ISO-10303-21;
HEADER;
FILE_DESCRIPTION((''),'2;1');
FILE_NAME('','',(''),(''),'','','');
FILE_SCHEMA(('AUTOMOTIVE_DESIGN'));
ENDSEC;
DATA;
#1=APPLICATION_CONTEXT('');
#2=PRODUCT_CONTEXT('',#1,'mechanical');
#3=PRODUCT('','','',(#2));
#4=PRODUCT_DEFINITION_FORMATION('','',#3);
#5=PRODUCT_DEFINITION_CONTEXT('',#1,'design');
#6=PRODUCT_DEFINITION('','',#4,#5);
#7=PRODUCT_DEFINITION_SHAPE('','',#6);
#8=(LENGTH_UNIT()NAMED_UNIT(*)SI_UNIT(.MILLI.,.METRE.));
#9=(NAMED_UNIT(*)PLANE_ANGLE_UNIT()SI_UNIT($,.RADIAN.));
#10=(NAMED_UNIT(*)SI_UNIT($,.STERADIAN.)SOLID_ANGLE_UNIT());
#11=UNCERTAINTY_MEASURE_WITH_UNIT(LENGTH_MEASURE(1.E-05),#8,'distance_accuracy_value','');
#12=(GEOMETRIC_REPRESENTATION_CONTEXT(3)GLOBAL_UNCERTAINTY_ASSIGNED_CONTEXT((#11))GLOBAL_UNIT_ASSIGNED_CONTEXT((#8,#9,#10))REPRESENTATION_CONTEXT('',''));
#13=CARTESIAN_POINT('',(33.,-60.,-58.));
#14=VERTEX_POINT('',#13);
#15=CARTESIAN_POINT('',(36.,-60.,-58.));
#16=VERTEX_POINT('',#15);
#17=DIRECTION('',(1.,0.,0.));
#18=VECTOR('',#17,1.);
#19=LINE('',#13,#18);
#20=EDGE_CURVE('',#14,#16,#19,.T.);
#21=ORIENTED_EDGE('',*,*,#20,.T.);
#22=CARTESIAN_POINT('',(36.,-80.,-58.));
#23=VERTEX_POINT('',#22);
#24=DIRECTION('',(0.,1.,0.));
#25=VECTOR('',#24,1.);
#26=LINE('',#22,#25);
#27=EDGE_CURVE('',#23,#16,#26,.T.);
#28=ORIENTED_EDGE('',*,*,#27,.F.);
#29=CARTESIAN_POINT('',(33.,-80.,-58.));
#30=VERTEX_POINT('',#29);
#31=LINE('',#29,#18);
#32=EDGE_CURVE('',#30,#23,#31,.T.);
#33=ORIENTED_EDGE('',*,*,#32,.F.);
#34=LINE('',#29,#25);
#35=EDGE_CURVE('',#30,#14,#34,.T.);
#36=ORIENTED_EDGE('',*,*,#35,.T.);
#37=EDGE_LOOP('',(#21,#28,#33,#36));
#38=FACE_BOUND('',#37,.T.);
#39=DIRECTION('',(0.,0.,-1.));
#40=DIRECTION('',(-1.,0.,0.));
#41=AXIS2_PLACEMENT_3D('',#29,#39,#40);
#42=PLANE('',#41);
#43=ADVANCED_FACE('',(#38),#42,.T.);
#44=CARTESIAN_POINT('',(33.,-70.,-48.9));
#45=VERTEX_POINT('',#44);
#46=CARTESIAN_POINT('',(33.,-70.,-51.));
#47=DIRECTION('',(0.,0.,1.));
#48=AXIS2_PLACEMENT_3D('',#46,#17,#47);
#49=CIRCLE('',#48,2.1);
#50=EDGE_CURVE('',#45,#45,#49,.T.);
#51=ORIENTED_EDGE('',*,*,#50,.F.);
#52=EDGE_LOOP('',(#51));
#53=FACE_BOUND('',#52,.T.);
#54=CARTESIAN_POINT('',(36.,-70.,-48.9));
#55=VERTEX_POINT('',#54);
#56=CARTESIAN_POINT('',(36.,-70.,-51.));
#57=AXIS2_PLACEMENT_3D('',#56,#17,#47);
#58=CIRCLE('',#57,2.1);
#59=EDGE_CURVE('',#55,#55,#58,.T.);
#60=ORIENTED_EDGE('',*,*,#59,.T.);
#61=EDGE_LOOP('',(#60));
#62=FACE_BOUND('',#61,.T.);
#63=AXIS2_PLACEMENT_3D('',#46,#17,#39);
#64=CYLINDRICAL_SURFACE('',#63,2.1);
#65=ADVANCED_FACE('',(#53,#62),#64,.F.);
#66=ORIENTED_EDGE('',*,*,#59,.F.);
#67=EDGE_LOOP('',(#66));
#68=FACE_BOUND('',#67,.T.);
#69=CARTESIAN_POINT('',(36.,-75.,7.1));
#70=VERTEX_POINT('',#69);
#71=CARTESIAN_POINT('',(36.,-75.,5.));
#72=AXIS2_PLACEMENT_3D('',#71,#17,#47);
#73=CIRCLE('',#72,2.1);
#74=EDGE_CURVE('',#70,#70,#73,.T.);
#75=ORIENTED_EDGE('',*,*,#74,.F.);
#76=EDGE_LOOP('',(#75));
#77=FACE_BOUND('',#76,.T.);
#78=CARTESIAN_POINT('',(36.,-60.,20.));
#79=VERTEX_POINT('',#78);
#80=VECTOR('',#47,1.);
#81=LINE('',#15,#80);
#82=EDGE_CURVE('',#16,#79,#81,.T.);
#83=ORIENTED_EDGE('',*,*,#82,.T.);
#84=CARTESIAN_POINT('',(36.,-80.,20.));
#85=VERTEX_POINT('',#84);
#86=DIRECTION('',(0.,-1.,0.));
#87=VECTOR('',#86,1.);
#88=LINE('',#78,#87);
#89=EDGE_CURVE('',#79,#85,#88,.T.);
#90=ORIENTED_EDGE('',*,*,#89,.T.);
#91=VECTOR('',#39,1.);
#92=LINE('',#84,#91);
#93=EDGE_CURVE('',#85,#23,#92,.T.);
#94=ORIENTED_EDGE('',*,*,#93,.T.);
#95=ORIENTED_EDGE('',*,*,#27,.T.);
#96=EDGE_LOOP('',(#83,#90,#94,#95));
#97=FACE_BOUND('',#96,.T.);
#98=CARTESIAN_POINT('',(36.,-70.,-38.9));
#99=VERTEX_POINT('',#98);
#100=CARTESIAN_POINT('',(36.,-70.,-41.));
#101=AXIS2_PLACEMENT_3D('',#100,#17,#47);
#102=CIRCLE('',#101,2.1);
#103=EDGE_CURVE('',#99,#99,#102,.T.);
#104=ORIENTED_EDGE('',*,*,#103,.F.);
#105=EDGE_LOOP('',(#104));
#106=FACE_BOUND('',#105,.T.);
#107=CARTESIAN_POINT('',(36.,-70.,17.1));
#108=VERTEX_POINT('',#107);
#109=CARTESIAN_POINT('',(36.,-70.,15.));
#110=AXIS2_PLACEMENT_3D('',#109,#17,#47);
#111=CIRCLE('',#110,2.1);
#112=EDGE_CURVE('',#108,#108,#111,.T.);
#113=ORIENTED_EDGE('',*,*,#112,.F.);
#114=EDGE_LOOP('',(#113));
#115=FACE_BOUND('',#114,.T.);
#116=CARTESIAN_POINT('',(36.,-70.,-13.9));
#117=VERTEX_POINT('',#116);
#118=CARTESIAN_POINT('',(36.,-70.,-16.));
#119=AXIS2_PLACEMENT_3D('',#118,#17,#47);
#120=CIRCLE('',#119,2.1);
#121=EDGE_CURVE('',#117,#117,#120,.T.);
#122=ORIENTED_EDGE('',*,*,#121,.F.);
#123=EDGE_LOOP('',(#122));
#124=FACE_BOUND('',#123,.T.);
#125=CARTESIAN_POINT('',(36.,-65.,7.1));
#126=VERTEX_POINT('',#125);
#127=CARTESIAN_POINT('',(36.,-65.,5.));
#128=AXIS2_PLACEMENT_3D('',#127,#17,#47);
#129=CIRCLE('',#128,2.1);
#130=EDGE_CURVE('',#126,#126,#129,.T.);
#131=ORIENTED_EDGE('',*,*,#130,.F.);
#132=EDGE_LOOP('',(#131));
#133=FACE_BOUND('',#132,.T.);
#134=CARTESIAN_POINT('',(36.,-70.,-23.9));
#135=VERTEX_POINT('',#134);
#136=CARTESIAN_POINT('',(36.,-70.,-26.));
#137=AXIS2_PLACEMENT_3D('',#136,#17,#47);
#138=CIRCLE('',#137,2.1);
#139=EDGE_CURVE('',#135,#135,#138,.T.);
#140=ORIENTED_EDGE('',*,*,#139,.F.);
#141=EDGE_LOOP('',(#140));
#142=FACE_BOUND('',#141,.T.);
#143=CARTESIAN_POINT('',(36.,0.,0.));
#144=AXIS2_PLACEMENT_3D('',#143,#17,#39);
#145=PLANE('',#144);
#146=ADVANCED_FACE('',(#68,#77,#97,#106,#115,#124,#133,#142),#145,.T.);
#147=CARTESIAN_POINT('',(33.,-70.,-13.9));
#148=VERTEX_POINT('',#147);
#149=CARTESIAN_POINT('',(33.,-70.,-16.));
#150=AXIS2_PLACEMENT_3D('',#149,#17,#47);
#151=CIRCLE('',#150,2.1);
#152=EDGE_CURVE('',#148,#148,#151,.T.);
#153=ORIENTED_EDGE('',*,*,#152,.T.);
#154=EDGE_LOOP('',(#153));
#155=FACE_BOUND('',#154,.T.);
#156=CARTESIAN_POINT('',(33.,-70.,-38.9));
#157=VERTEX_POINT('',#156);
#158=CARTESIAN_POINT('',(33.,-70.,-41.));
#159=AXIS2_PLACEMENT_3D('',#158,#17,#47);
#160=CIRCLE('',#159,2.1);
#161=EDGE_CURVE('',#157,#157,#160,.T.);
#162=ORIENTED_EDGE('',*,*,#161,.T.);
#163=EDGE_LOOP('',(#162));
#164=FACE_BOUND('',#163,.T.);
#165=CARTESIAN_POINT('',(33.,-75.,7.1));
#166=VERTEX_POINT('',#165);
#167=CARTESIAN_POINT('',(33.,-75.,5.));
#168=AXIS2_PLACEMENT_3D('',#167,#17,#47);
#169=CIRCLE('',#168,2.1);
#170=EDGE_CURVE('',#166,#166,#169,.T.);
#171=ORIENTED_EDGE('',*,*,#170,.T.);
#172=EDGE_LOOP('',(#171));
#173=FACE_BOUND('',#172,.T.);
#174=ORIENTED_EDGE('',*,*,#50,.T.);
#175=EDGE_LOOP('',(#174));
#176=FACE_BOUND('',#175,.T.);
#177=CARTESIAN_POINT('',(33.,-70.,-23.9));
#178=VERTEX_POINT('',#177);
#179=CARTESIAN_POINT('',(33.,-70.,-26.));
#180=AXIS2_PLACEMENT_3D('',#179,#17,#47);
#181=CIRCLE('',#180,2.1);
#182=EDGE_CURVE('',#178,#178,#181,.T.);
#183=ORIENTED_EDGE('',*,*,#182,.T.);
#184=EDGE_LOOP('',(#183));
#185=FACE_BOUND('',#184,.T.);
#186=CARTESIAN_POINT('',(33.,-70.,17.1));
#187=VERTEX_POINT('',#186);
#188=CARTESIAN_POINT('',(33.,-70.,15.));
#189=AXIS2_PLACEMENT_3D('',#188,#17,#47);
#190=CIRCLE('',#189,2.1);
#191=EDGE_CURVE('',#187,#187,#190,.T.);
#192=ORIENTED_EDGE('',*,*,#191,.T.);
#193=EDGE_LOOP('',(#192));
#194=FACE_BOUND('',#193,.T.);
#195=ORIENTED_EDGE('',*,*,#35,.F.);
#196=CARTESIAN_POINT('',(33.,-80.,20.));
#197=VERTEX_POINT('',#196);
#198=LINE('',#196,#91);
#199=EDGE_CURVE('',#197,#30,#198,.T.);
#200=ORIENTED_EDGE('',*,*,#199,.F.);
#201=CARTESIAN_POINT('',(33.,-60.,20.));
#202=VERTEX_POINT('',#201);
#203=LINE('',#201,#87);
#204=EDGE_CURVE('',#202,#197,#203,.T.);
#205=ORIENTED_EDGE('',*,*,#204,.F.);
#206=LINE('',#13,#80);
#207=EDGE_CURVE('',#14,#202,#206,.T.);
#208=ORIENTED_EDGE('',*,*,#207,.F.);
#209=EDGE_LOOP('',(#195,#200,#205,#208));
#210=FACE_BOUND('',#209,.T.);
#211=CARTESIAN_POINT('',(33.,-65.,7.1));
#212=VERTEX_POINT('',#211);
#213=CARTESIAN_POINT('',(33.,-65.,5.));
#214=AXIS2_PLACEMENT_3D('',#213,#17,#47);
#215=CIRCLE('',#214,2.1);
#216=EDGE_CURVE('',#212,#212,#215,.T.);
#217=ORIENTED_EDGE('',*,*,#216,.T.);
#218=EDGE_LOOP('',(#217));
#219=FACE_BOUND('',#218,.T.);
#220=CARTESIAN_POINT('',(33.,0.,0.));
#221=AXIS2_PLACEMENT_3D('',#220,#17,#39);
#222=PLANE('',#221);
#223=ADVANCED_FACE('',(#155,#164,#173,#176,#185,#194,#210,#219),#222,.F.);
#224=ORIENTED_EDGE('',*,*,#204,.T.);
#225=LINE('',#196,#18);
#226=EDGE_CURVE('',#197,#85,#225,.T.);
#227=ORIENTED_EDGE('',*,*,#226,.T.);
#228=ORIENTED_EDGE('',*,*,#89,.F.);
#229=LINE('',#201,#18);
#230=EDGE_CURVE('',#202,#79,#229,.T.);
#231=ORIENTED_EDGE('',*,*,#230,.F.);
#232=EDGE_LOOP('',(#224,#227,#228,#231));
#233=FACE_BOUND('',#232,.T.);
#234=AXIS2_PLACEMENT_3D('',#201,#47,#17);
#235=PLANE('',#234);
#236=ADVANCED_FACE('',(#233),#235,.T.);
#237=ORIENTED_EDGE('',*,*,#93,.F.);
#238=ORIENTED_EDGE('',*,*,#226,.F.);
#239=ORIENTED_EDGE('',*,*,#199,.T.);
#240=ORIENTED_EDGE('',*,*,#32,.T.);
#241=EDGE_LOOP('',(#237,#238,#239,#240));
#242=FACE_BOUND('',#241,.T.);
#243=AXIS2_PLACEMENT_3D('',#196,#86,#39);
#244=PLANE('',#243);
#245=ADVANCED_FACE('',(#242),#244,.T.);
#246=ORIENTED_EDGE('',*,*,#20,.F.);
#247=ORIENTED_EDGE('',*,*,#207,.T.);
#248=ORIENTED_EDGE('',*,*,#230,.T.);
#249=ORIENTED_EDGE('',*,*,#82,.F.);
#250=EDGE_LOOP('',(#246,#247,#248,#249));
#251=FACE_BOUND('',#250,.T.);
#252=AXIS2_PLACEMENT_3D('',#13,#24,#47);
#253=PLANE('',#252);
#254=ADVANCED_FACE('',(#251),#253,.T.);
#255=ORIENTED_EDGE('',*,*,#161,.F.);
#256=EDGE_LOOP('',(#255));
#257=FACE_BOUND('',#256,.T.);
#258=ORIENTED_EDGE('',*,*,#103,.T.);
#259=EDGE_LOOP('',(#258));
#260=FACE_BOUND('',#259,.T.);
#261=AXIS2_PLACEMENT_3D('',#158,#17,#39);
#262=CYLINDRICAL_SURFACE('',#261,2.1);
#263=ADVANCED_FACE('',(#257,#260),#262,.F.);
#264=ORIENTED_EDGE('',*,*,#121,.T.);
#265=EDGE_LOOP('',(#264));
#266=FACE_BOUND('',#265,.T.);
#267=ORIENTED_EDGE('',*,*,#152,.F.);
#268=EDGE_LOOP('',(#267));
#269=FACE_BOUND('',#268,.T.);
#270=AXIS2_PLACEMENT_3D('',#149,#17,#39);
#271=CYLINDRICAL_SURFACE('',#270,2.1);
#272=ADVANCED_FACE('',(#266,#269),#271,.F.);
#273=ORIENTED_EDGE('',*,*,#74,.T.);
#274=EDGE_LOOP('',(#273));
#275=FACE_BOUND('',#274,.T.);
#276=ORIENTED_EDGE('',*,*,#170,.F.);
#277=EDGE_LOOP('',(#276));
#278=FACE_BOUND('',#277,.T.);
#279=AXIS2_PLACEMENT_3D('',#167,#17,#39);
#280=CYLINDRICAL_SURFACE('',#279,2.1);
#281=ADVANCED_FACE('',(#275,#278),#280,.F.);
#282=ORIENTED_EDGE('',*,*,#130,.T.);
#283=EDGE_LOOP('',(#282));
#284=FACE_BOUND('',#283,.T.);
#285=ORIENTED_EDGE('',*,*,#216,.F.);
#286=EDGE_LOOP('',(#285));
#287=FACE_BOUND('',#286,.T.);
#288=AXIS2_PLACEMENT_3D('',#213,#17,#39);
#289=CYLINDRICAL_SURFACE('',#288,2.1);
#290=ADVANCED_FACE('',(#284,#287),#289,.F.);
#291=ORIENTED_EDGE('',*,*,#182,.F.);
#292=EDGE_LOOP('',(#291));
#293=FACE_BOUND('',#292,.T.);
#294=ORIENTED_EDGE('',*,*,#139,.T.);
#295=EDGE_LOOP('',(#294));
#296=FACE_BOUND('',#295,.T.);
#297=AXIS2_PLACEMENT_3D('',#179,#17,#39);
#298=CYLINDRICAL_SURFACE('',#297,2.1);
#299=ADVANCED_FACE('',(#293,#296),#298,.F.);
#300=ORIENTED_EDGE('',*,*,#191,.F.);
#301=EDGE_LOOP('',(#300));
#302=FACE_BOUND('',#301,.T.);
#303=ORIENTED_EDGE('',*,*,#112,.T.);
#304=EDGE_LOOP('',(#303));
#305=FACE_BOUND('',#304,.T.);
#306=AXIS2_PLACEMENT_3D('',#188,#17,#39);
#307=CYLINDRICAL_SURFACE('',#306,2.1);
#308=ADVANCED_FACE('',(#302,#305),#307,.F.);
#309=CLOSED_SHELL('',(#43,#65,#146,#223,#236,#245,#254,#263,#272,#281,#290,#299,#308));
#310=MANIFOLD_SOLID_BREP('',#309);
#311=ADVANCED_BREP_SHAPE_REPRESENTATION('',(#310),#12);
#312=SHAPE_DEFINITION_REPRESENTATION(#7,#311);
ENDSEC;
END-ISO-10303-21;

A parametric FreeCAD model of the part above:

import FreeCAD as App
import Part
import Sketcher
from FreeCAD import Vector

doc = App.newDocument("Part")
params = doc.addObject("Spreadsheet::Sheet", "Params")
for row, (alias, value) in enumerate([
    ("sketch1_diameter", "4.2 mm"),
    ("sketch1_width", "20 mm"),
    ("sketch1_height", "78 mm"),
    ("pad1_length", "3 mm"),
], start=1):
    params.set(f"A{row}", alias)
    params.set(f"B{row}", "=" + value)
    params.setAlias(f"B{row}", alias)

body = doc.addObject("PartDesign::Body", "Body")

# Sketch on YZ plane
sketch1 = body.newObject("Sketcher::SketchObject", "Sketch")
sketch1.AttachmentSupport = (doc.getObject("YZ_Plane"), [""])
sketch1.MapMode = "FlatFace"
sketch1.AttachmentOffset = App.Placement(Vector(0, 0, 36), App.Rotation())
sketch1.addGeometry(Part.LineSegment(Vector(-60, 20, 0), Vector(-80, 20, 0)), False)
sketch1.addGeometry(Part.LineSegment(Vector(-80, 20, 0), Vector(-80, -58, 0)), False)
sketch1.addGeometry(Part.LineSegment(Vector(-80, -58, 0), Vector(-60, -58, 0)), False)
sketch1.addGeometry(Part.LineSegment(Vector(-60, -58, 0), Vector(-60, 20, 0)), False)
sketch1.addGeometry(Part.Circle(Vector(-75, 5, 0), Vector(0, 0, 1), 2.1), False)
sketch1.addGeometry(Part.Circle(Vector(-70, 15, 0), Vector(0, 0, 1), 2.1), False)
sketch1.addGeometry(Part.Circle(Vector(-70, -16, 0), Vector(0, 0, 1), 2.1), False)
sketch1.addGeometry(Part.Circle(Vector(-65, 5, 0), Vector(0, 0, 1), 2.1), False)
sketch1.addGeometry(Part.Circle(Vector(-70, -26, 0), Vector(0, 0, 1), 2.1), False)
sketch1.addGeometry(Part.Circle(Vector(-70, -41, 0), Vector(0, 0, 1), 2.1), False)
sketch1.addGeometry(Part.Circle(Vector(-70, -51, 0), Vector(0, 0, 1), 2.1), False)
sketch1.addConstraint(Sketcher.Constraint("Coincident", 0, 2, 1, 1))
sketch1.addConstraint(Sketcher.Constraint("Coincident", 1, 2, 2, 1))
sketch1.addConstraint(Sketcher.Constraint("Coincident", 2, 2, 3, 1))
sketch1.addConstraint(Sketcher.Constraint("Coincident", 3, 2, 0, 1))
sketch1.addConstraint(Sketcher.Constraint("Horizontal", 0))
sketch1.addConstraint(Sketcher.Constraint("Vertical", 1))
sketch1.addConstraint(Sketcher.Constraint("Horizontal", 2))
sketch1.addConstraint(Sketcher.Constraint("Vertical", 3))
sketch1.addConstraint(Sketcher.Constraint("Equal", 4, 5))
sketch1.addConstraint(Sketcher.Constraint("Equal", 5, 6))
sketch1.addConstraint(Sketcher.Constraint("Equal", 6, 7))
sketch1.addConstraint(Sketcher.Constraint("Equal", 7, 8))
sketch1.addConstraint(Sketcher.Constraint("Equal", 8, 9))
sketch1.addConstraint(Sketcher.Constraint("Equal", 9, 10))
sketch1.addConstraint(Sketcher.Constraint("Horizontal", 4, 3, 7, 3))
sketch1.addConstraint(Sketcher.Constraint("Vertical", 5, 3, 6, 3))
sketch1.addConstraint(Sketcher.Constraint("Vertical", 6, 3, 8, 3))
sketch1.addConstraint(Sketcher.Constraint("Vertical", 8, 3, 9, 3))
sketch1.addConstraint(Sketcher.Constraint("Vertical", 9, 3, 10, 3))
sketch1.addConstraint(Sketcher.Constraint("Diameter", 4, 4.2))
sketch1.addConstraint(Sketcher.Constraint("DistanceX", 0, 2, 0, 1, 20.0))
sketch1.addConstraint(Sketcher.Constraint("DistanceY", 1, 2, 1, 1, 78.0))
sketch1.addConstraint(Sketcher.Constraint("DistanceX", 4, 3, -1, 1, 75.0))
sketch1.addConstraint(Sketcher.Constraint("DistanceY", -1, 1, 4, 3, 5.0))
sketch1.addConstraint(Sketcher.Constraint("DistanceX", 5, 3, -1, 1, 70.0))
sketch1.addConstraint(Sketcher.Constraint("DistanceY", -1, 1, 5, 3, 15.0))
sketch1.addConstraint(Sketcher.Constraint("DistanceY", 6, 3, -1, 1, 16.0))
sketch1.addConstraint(Sketcher.Constraint("DistanceX", 7, 3, -1, 1, 65.0))
sketch1.addConstraint(Sketcher.Constraint("DistanceY", 8, 3, -1, 1, 26.0))
sketch1.addConstraint(Sketcher.Constraint("DistanceY", 9, 3, -1, 1, 41.0))
sketch1.addConstraint(Sketcher.Constraint("DistanceY", 10, 3, -1, 1, 51.0))
sketch1.addConstraint(Sketcher.Constraint("DistanceX", 0, 2, -1, 1, 80.0))
sketch1.addConstraint(Sketcher.Constraint("DistanceY", -1, 1, 0, 2, 20.0))
sketch1.setExpression("Constraints[19]", "Params.sketch1_diameter")
sketch1.setExpression("Constraints[20]", "Params.sketch1_width")
sketch1.setExpression("Constraints[21]", "Params.sketch1_height")
pad1 = body.newObject("PartDesign::Pad", "Pad")
pad1.Profile = sketch1
pad1.setExpression("Length", "Params.pad1_length")
pad1.Reversed = True

doc.recompute()
